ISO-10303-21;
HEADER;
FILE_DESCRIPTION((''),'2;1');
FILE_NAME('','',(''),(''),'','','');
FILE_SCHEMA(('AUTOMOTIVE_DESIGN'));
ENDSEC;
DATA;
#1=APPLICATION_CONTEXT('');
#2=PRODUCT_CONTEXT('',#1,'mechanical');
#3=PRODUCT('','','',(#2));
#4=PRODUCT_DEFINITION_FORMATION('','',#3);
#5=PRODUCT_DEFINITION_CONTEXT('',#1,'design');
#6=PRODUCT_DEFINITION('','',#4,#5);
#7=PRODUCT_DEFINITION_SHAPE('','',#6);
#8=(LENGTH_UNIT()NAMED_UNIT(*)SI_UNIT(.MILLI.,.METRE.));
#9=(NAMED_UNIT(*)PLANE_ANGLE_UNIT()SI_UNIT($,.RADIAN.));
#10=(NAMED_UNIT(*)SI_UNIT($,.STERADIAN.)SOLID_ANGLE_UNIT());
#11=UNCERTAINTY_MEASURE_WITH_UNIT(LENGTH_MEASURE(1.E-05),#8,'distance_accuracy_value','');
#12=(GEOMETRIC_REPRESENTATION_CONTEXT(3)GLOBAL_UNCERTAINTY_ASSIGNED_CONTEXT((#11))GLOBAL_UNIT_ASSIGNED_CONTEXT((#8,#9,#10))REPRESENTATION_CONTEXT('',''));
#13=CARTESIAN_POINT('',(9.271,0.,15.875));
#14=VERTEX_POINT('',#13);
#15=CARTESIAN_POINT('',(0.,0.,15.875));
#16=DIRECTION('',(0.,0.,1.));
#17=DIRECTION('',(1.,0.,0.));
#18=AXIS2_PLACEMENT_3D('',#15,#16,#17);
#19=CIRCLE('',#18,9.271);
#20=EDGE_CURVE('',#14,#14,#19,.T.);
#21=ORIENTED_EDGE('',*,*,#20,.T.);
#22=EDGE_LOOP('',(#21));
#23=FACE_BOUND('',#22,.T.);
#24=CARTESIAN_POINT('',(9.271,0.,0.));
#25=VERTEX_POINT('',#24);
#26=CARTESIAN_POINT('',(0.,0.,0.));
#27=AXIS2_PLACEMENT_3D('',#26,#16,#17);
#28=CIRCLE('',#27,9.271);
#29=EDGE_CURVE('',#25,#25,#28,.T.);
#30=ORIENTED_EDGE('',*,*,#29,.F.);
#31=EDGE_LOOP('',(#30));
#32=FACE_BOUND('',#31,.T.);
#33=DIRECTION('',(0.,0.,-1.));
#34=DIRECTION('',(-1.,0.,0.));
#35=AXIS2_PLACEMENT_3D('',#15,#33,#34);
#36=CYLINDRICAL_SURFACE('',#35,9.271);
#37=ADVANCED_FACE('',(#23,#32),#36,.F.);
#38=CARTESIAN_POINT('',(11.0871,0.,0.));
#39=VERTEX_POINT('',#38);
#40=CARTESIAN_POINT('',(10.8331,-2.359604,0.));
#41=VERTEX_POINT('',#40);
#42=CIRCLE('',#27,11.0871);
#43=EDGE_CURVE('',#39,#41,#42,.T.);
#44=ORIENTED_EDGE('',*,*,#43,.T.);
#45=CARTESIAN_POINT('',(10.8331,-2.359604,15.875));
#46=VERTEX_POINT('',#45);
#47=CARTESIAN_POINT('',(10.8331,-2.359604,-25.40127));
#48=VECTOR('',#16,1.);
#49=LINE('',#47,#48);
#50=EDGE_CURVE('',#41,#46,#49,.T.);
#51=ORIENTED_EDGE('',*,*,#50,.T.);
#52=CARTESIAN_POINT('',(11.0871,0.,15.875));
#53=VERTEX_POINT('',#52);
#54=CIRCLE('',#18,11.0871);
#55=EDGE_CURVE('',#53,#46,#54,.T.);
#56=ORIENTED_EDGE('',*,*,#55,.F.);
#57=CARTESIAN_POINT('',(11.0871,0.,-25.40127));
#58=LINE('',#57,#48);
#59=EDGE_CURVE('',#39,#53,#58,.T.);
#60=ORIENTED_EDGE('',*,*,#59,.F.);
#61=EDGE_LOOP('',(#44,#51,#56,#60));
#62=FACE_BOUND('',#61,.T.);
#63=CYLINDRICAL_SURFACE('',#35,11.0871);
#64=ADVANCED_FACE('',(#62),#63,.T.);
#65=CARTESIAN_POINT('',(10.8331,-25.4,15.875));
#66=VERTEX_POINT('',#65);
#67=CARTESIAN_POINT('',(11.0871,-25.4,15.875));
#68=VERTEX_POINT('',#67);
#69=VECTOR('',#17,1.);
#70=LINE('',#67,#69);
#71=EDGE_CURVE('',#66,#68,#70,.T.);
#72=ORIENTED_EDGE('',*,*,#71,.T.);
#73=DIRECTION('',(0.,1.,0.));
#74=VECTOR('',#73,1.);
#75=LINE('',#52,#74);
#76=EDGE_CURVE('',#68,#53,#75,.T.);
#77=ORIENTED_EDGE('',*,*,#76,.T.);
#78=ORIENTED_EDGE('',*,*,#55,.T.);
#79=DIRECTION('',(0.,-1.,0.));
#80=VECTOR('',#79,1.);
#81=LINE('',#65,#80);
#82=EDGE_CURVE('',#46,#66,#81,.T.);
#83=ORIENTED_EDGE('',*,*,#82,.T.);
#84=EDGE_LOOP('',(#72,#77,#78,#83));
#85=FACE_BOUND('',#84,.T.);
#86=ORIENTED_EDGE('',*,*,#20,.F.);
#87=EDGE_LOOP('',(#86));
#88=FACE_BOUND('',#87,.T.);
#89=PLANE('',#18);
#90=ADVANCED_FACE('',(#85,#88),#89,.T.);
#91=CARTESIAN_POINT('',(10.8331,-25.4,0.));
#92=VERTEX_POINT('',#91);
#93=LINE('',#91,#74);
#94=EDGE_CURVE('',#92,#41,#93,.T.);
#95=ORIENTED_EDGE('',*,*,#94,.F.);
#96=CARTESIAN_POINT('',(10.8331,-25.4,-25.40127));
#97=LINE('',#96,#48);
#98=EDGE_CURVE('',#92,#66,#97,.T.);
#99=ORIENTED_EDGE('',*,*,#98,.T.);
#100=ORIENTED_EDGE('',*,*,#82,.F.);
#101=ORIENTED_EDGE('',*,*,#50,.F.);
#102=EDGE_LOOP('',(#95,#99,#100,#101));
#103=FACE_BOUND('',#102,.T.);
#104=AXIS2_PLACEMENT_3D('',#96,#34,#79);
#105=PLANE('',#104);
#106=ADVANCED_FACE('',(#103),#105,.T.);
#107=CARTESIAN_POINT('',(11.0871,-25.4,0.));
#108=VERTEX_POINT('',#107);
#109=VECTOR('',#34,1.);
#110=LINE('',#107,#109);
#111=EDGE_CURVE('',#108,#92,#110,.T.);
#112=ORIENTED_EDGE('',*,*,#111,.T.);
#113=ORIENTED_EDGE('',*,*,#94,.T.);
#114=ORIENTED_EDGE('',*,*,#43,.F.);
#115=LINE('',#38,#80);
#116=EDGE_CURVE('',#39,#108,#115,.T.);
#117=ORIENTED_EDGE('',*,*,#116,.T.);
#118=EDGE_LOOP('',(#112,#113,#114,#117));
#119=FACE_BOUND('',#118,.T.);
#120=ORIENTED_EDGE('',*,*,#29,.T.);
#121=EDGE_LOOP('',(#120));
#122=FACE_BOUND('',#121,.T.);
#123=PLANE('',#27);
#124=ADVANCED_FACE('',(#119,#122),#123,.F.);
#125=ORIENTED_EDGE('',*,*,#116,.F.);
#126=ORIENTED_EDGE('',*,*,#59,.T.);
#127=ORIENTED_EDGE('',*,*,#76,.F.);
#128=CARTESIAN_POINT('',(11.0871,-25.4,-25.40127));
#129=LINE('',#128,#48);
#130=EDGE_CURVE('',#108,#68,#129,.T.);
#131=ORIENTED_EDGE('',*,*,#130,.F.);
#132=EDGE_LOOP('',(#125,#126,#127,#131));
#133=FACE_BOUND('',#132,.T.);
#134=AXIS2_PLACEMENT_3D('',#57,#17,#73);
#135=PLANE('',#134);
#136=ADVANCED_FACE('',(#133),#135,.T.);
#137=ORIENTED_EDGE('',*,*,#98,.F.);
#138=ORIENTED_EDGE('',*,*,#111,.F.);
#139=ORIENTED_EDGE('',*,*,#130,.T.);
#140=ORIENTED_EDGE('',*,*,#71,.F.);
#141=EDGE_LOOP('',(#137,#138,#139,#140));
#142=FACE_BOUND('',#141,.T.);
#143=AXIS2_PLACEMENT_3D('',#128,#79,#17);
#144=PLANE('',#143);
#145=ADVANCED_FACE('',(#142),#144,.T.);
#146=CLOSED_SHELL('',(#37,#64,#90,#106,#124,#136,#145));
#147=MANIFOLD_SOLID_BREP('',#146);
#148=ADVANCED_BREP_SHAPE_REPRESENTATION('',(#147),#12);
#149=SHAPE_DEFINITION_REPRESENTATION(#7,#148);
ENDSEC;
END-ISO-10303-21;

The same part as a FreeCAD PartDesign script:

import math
import FreeCAD as App
import Part
import Sketcher

V = App.Vector
Q = App.Units.Quantity

doc = App.newDocument("Part")
params = doc.addObject("Spreadsheet::Sheet", "Params")
for row, (alias, value) in enumerate([
    ("sketch1_diameter", "0.73 in"),
    ("sketch1_diameter2", "0.873 in"),
    ("pad1_length", "0.625 in"),
    ("sketch2_height", "1 in"),
    ("sketch2_width", "0.01 in"),
    ("pad2_length", "0.625 in"),
], start=1):
    params.set(f"A{row}", alias)
    params.set(f"B{row}", "=" + value)
    params.setAlias(f"B{row}", alias)

body = doc.addObject("PartDesign::Body", "Body")

sketch1 = doc.addObject("Sketcher::SketchObject", "Sketch")
body.addObject(sketch1)
sketch1.AttachmentSupport = (doc.XY_Plane, [""])
sketch1.MapMode = "FlatFace"
sketch1.addGeometry(Part.Circle(V(0, 0, 0), V(0, 0, 1), 11), False)
sketch1.addGeometry(Part.Circle(V(0, 0, 0), V(0, 0, 1), 9), False)
sketch1.addConstraint(Sketcher.Constraint("Coincident", 0, 3, -1, 1))
sketch1.addConstraint(Sketcher.Constraint("Coincident", 1, 3, -1, 1))
sketch1.addConstraint(Sketcher.Constraint("Diameter", 1, Q("0.73 in")))
sketch1.addConstraint(Sketcher.Constraint("Diameter", 0, Q("0.873 in")))
sketch1.setExpression("Constraints[2]", "Params.sketch1_diameter")
sketch1.setExpression("Constraints[3]", "Params.sketch1_diameter2")
pad1 = doc.addObject("PartDesign::Pad", "Pad")
body.addObject(pad1)
pad1.Profile = sketch1
pad1.setExpression("Length", "Params.pad1_length")

sketch2 = doc.addObject("Sketcher::SketchObject", "Sketch001")
body.addObject(sketch2)
sketch2.AttachmentSupport = (doc.XY_Plane, [""])
sketch2.MapMode = "FlatFace"
sketch2.addGeometry(Part.LineSegment(V(11.09, -25.4, 0), V(11.09, 0, 0)), False)
sketch2.addGeometry(Part.ArcOfCircle(Part.Circle(V(0, 0, 0), V(0, 0, 1), 11.09), math.radians(-12.29), math.radians(0)), False)
sketch2.addGeometry(Part.LineSegment(V(10.83, -2.36, 0), V(10.83, -25.4, 0)), False)
sketch2.addGeometry(Part.LineSegment(V(10.83, -25.4, 0), V(11.09, -25.4, 0)), False)
sketch2.addConstraint(Sketcher.Constraint("Tangent", 0, 2, 1, 2))
sketch2.addConstraint(Sketcher.Constraint("Coincident", 1, 1, 2, 1))
sketch2.addConstraint(Sketcher.Constraint("Coincident", 2, 2, 3, 1))
sketch2.addConstraint(Sketcher.Constraint("Coincident", 3, 2, 0, 1))
sketch2.addConstraint(Sketcher.Constraint("Vertical", 0))
sketch2.addConstraint(Sketcher.Constraint("Vertical", 2))
sketch2.addConstraint(Sketcher.Constraint("Horizontal", 3))
sketch2.addConstraint(Sketcher.Constraint("Coincident", 1, 3, -1, 1))
sketch2.addConstraint(Sketcher.Constraint("DistanceY", 0, 1, 0, 2, Q("1 in")))
sketch2.addConstraint(Sketcher.Constraint("DistanceX", 3, 1, 3, 2, Q("0.01 in")))
sketch2.addConstraint(Sketcher.Constraint("Radius", 1, Q("0.4365 in")))
sketch2.setExpression("Constraints[8]", "Params.sketch2_height")
sketch2.setExpression("Constraints[9]", "Params.sketch2_width")
pad2 = doc.addObject("PartDesign::Pad", "Pad001")
body.addObject(pad2)
pad2.Profile = sketch2
pad2.setExpression("Length", "Params.pad2_length")

doc.recompute()
